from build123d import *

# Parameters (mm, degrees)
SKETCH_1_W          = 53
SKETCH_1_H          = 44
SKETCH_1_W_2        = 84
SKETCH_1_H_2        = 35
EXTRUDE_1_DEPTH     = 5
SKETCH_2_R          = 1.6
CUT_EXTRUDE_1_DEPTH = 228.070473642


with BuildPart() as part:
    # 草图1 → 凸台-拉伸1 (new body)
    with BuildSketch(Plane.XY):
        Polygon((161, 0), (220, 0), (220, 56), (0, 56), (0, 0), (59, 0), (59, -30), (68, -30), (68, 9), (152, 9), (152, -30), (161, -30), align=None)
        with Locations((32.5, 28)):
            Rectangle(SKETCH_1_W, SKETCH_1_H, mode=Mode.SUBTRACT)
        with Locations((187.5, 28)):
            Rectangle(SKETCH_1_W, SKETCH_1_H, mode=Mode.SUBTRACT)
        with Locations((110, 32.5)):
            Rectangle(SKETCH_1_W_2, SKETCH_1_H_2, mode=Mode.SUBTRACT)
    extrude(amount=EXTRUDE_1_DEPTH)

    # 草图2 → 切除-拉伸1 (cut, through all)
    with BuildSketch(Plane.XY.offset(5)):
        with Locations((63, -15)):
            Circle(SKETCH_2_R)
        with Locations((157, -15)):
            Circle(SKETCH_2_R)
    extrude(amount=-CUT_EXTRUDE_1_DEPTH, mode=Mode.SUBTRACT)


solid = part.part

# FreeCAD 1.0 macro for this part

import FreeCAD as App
import Part
import Sketcher
from FreeCAD import Vector
Q = App.Units.Quantity

doc = App.newDocument("Part")
body = doc.addObject("PartDesign::Body", "Body")

sketch1 = body.newObject("Sketcher::SketchObject", "Sketch")
sketch1.AttachmentSupport = (doc.getObject("XY_Plane"), [""])
sketch1.MapMode = "FlatFace"
sketch1.addGeometry(Part.LineSegment(Vector(161, 0, 0), Vector(220, 0, 0)), False)
sketch1.addGeometry(Part.LineSegment(Vector(220, 0, 0), Vector(220, 56, 0)), False)
sketch1.addGeometry(Part.LineSegment(Vector(220, 56, 0), Vector(0, 56, 0)), False)
sketch1.addGeometry(Part.LineSegment(Vector(0, 56, 0), Vector(0, 0, 0)), False)
sketch1.addGeometry(Part.LineSegment(Vector(0, 0, 0), Vector(59, 0, 0)), False)
sketch1.addGeometry(Part.LineSegment(Vector(59, 0, 0), Vector(59, -30, 0)), False)
sketch1.addGeometry(Part.LineSegment(Vector(59, -30, 0), Vector(68, -30, 0)), False)
sketch1.addGeometry(Part.LineSegment(Vector(68, -30, 0), Vector(68, 9, 0)), False)
sketch1.addGeometry(Part.LineSegment(Vector(68, 9, 0), Vector(152, 9, 0)), False)
sketch1.addGeometry(Part.LineSegment(Vector(152, 9, 0), Vector(152, -30, 0)), False)
sketch1.addGeometry(Part.LineSegment(Vector(152, -30, 0), Vector(161, -30, 0)), False)
sketch1.addGeometry(Part.LineSegment(Vector(161, -30, 0), Vector(161, 0, 0)), False)
sketch1.addGeometry(Part.LineSegment(Vector(59, 6, 0), Vector(6, 6, 0)), False)
sketch1.addGeometry(Part.LineSegment(Vector(6, 6, 0), Vector(6, 50, 0)), False)
sketch1.addGeometry(Part.LineSegment(Vector(6, 50, 0), Vector(59, 50, 0)), False)
sketch1.addGeometry(Part.LineSegment(Vector(59, 50, 0), Vector(59, 6, 0)), False)
sketch1.addGeometry(Part.LineSegment(Vector(152, 15, 0), Vector(68, 15, 0)), False)
sketch1.addGeometry(Part.LineSegment(Vector(68, 15, 0), Vector(68, 50, 0)), False)
sketch1.addGeometry(Part.LineSegment(Vector(68, 50, 0), Vector(152, 50, 0)), False)
sketch1.addGeometry(Part.LineSegment(Vector(152, 50, 0), Vector(152, 15, 0)), False)
sketch1.addGeometry(Part.LineSegment(Vector(214, 6, 0), Vector(161, 6, 0)), False)
sketch1.addGeometry(Part.LineSegment(Vector(161, 6, 0), Vector(161, 50, 0)), False)
sketch1.addGeometry(Part.LineSegment(Vector(161, 50, 0), Vector(214, 50, 0)), False)
sketch1.addGeometry(Part.LineSegment(Vector(214, 50, 0), Vector(214, 6, 0)), False)
sketch1.addConstraint(Sketcher.Constraint("Coincident", 0, 2, 1, 1))
sketch1.addConstraint(Sketcher.Constraint("Coincident", 1, 2, 2, 1))
sketch1.addConstraint(Sketcher.Constraint("Coincident", 2, 2, 3, 1))
sketch1.addConstraint(Sketcher.Constraint("Coincident", 3, 2, 4, 1))
sketch1.addConstraint(Sketcher.Constraint("Coincident", 4, 2, 5, 1))
sketch1.addConstraint(Sketcher.Constraint("Coincident", 5, 2, 6, 1))
sketch1.addConstraint(Sketcher.Constraint("Coincident", 6, 2, 7, 1))
sketch1.addConstraint(Sketcher.Constraint("Coincident", 7, 2, 8, 1))
sketch1.addConstraint(Sketcher.Constraint("Coincident", 8, 2, 9, 1))
sketch1.addConstraint(Sketcher.Constraint("Coincident", 9, 2, 10, 1))
sketch1.addConstraint(Sketcher.Constraint("Coincident", 10, 2, 11, 1))
sketch1.addConstraint(Sketcher.Constraint("Coincident", 11, 2, 0, 1))
sketch1.addConstraint(Sketcher.Constraint("Coincident", 12, 2, 13, 1))
sketch1.addConstraint(Sketcher.Constraint("Coincident", 13, 2, 14, 1))
sketch1.addConstraint(Sketcher.Constraint("Coincident", 14, 2, 15, 1))
sketch1.addConstraint(Sketcher.Constraint("Coincident", 15, 2, 12, 1))
sketch1.addConstraint(Sketcher.Constraint("Coincident", 16, 2, 17, 1))
sketch1.addConstraint(Sketcher.Constraint("Coincident", 17, 2, 18, 1))
sketch1.addConstraint(Sketcher.Constraint("Coincident", 18, 2, 19, 1))
sketch1.addConstraint(Sketcher.Constraint("Coincident", 19, 2, 16, 1))
sketch1.addConstraint(Sketcher.Constraint("Coincident", 20, 2, 21, 1))
sketch1.addConstraint(Sketcher.Constraint("Coincident", 21, 2, 22, 1))
sketch1.addConstraint(Sketcher.Constraint("Coincident", 22, 2, 23, 1))
sketch1.addConstraint(Sketcher.Constraint("Coincident", 23, 2, 20, 1))
sketch1.addConstraint(Sketcher.Constraint("Horizontal", 0))
sketch1.addConstraint(Sketcher.Constraint("Vertical", 1))
sketch1.addConstraint(Sketcher.Constraint("Horizontal", 2))
sketch1.addConstraint(Sketcher.Constraint("Vertical", 3))
sketch1.addConstraint(Sketcher.Constraint("Horizontal", 4))
sketch1.addConstraint(Sketcher.Constraint("Vertical", 5))
sketch1.addConstraint(Sketcher.Constraint("Horizontal", 6))
sketch1.addConstraint(Sketcher.Constraint("Vertical", 7))
sketch1.addConstraint(Sketcher.Constraint("Horizontal", 8))
sketch1.addConstraint(Sketcher.Constraint("Vertical", 9))
sketch1.addConstraint(Sketcher.Constraint("Horizontal", 10))
sketch1.addConstraint(Sketcher.Constraint("Vertical", 11))
sketch1.addConstraint(Sketcher.Constraint("Horizontal", 12))
sketch1.addConstraint(Sketcher.Constraint("Vertical", 13))
sketch1.addConstraint(Sketcher.Constraint("Horizontal", 14))
sketch1.addConstraint(Sketcher.Constraint("Vertical", 15))
sketch1.addConstraint(Sketcher.Constraint("Horizontal", 16))
sketch1.addConstraint(Sketcher.Constraint("Vertical", 17))
sketch1.addConstraint(Sketcher.Constraint("Horizontal", 18))
sketch1.addConstraint(Sketcher.Constraint("Vertical", 19))
sketch1.addConstraint(Sketcher.Constraint("Horizontal", 20))
sketch1.addConstraint(Sketcher.Constraint("Vertical", 21))
sketch1.addConstraint(Sketcher.Constraint("Horizontal", 22))
sketch1.addConstraint(Sketcher.Constraint("Vertical", 23))
sketch1.addConstraint(Sketcher.Constraint("Coincident", 3, 2, -1, 1))
sketch1.addConstraint(Sketcher.Constraint("PointOnObject", 0, 2, -1))
sketch1.addConstraint(Sketcher.Constraint("Horizontal", 6, 2, 9, 2))
sketch1.addConstraint(Sketcher.Constraint("Horizontal", 14, 2, 17, 2))
sketch1.addConstraint(Sketcher.Constraint("Horizontal", 15, 2, 20, 2))
sketch1.addConstraint(Sketcher.Constraint("Horizontal", 18, 2, 21, 2))
sketch1.addConstraint(Sketcher.Constraint("Vertical", 5, 2, 14, 2))
sketch1.addConstraint(Sketcher.Constraint("Vertical", 7, 2, 16, 2))
sketch1.addConstraint(Sketcher.Constraint("Vertical", 9, 2, 18, 2))
sketch1.addConstraint(Sketcher.Constraint("Vertical", 11, 2, 20, 2))
sketch1.addConstraint(Sketcher.Constraint("Equal", 0, 4))
sketch1.addConstraint(Sketcher.Constraint("Equal", 6, 10))
sketch1.addConstraint(Sketcher.Constraint("Equal", 14, 20))
sketch1.addConstraint(Sketcher.Constraint("DistanceX", 0, 1, 0, 2, Q("59 mm")))
sketch1.addConstraint(Sketcher.Constraint("DistanceX", 2, 2, 2, 1, Q("220 mm")))
sketch1.addConstraint(Sketcher.Constraint("DistanceX", 6, 1, 6, 2, Q("9 mm")))
sketch1.addConstraint(Sketcher.Constraint("DistanceX", 12, 2, 12, 1, Q("53 mm")))
sketch1.addConstraint(Sketcher.Constraint("DistanceY", 1, 1, 1, 2, Q("56 mm")))
sketch1.addConstraint(Sketcher.Constraint("DistanceY", 5, 2, 5, 1, Q("30 mm")))
sketch1.addConstraint(Sketcher.Constraint("DistanceY", 7, 1, 7, 2, Q("39 mm")))
sketch1.addConstraint(Sketcher.Constraint("DistanceY", 13, 1, 13, 2, Q("44 mm")))
sketch1.addConstraint(Sketcher.Constraint("DistanceY", 17, 1, 17, 2, Q("35 mm")))
sketch1.addConstraint(Sketcher.Constraint("DistanceY", -1, 1, 12, 2, Q("6 mm")))
pad1 = body.newObject("PartDesign::Pad", "Pad")
pad1.Profile = sketch1
pad1.Length = 5

sketch2 = body.newObject("Sketcher::SketchObject", "Sketch001")
sketch2.AttachmentSupport = (doc.getObject("XY_Plane"), [""])
sketch2.MapMode = "FlatFace"
sketch2.AttachmentOffset = App.Placement(Vector(0, 0, 5), App.Rotation())
sketch2.addGeometry(Part.Circle(Vector(63, -15, 0), Vector(0, 0, 1), 1.6), False)
sketch2.addGeometry(Part.Circle(Vector(157, -15, 0), Vector(0, 0, 1), 1.6), False)
sketch2.addConstraint(Sketcher.Constraint("Equal", 0, 1))
sketch2.addConstraint(Sketcher.Constraint("Horizontal", 0, 3, 1, 3))
sketch2.addConstraint(Sketcher.Constraint("Diameter", 0, Q("3.2 mm")))
sketch2.addConstraint(Sketcher.Constraint("DistanceX", -1, 1, 0, 3, Q("63 mm")))
sketch2.addConstraint(Sketcher.Constraint("DistanceY", 0, 3, -1, 1, Q("15 mm")))
sketch2.addConstraint(Sketcher.Constraint("DistanceX", -1, 1, 1, 3, Q("157 mm")))
pocket1 = body.newObject("PartDesign::Pocket", "Pocket")
pocket1.Profile = sketch2
pocket1.Type = "ThroughAll"

doc.recompute()
